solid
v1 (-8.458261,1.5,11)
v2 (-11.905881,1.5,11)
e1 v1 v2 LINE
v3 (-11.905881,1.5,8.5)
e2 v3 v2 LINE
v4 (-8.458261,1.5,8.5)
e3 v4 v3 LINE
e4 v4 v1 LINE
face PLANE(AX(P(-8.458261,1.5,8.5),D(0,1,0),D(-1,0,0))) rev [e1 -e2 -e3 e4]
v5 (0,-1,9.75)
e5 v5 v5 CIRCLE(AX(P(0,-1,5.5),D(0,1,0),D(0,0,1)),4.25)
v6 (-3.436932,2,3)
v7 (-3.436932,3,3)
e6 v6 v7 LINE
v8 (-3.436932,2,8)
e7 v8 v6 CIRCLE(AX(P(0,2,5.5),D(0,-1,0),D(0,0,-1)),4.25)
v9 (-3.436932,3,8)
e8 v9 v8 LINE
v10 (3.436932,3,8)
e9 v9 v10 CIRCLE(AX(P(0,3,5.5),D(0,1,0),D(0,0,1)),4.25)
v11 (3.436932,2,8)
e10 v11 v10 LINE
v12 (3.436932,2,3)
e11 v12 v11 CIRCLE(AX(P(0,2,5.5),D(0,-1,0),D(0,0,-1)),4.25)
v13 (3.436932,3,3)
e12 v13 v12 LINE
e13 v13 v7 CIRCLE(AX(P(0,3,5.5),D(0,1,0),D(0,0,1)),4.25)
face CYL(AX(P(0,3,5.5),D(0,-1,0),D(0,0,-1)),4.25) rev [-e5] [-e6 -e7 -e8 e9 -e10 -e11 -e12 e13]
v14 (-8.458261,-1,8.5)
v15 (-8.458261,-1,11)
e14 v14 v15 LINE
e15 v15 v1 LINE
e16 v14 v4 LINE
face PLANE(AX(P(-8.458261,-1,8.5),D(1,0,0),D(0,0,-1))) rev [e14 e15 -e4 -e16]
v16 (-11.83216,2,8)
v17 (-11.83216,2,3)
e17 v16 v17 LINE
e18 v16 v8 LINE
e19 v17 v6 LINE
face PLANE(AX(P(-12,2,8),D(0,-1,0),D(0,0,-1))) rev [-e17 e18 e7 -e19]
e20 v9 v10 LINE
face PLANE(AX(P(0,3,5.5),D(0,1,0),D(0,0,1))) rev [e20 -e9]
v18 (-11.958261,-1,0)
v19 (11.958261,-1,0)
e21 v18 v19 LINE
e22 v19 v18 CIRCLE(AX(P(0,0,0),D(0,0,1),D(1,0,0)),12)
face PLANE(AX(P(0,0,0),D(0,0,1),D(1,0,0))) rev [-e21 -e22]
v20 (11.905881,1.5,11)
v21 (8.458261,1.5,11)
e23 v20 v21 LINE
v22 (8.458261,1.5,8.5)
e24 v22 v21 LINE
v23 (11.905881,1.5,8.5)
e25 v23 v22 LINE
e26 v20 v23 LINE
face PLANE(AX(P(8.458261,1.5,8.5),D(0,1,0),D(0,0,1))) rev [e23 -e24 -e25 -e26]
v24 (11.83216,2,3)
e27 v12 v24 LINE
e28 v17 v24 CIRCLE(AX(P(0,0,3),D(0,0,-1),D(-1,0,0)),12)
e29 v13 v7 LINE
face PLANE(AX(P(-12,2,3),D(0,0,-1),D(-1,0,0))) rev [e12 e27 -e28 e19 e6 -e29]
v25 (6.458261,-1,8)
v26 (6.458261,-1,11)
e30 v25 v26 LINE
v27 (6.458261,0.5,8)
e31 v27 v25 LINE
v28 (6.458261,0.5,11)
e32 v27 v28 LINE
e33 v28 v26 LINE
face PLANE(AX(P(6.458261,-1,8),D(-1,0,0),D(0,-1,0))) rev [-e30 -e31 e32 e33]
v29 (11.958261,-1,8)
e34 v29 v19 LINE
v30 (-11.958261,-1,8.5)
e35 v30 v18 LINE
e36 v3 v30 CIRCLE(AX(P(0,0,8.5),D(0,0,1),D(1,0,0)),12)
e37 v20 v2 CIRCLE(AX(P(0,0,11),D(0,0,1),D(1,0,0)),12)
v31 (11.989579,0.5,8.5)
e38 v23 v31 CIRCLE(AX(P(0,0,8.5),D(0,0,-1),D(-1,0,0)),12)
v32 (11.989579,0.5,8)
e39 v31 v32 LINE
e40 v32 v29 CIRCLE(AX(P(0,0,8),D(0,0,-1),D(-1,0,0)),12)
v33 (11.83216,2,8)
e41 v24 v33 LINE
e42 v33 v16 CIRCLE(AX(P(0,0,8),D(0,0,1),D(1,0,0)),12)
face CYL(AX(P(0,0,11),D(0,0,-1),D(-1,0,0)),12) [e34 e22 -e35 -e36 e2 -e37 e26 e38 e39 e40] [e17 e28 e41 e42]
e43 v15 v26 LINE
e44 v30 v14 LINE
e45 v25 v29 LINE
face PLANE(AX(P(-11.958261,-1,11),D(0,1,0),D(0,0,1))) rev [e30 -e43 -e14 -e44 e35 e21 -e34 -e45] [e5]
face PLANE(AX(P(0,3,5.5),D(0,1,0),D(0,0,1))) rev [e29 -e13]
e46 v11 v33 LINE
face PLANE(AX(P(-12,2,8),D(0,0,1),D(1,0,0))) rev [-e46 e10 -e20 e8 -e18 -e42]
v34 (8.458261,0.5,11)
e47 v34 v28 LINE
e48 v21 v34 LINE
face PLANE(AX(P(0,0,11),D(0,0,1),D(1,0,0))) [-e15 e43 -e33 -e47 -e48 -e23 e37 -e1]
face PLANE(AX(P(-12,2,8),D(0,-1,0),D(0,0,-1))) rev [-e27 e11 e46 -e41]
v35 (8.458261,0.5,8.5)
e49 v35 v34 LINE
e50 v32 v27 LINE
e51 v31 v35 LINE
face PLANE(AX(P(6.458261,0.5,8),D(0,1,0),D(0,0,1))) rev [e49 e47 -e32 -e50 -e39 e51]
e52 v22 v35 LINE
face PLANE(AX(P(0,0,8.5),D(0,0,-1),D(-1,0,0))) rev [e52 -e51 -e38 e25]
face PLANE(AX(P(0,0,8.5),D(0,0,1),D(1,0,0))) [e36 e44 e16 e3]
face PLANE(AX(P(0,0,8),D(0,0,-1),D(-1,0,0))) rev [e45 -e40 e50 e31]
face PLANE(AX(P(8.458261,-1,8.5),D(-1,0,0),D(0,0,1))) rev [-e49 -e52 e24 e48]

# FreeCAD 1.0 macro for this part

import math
import FreeCAD as App
import Part
import Sketcher

V = App.Vector

doc = App.newDocument("Part")
body = doc.addObject("PartDesign::Body", "Body")

sketch1 = body.newObject("Sketcher::SketchObject", "Sketch")
sketch1.AttachmentSupport = (doc.getObject("XY_Plane"), [""])
sketch1.MapMode = "FlatFace"
sketch1.addGeometry(Part.LineSegment(V(-12, -1, 0), V(12, -1, 0)), False)
sketch1.addGeometry(Part.ArcOfCircle(Part.Circle(V(0, 0, 0), V(0, 0, 1), 12), math.radians(-5), math.radians(185)), False)
sketch1.addConstraint(Sketcher.Constraint("Coincident", 0, 1, 1, 2))
sketch1.addConstraint(Sketcher.Constraint("Coincident", 1, 1, 0, 2))
sketch1.addConstraint(Sketcher.Constraint("Horizontal", 0))
sketch1.addConstraint(Sketcher.Constraint("Coincident", 1, 3, -1, 1))
sketch1.addConstraint(Sketcher.Constraint("Radius", 1, 12.0))
sketch1.addConstraint(Sketcher.Constraint("DistanceY", 0, 1, -1, 1, 1.0))
pad1 = body.newObject("PartDesign::Pad", "Pad")
pad1.Profile = sketch1
pad1.Length = 11

sketch2 = body.newObject("Sketcher::SketchObject", "Sketch001")
sketch2.AttachmentSupport = (doc.getObject("XZ_Plane"), [""])
sketch2.MapMode = "FlatFace"
sketch2.AttachmentOffset = App.Placement(V(0, 0, 1), App.Rotation())
sketch2.addGeometry(Part.Circle(V(0, 5.5, 0), V(0, 0, 1), 4.2), False)
sketch2.addConstraint(Sketcher.Constraint("PointOnObject", 0, 3, -2))
sketch2.addConstraint(Sketcher.Constraint("Diameter", 0, 8.5))
sketch2.addConstraint(Sketcher.Constraint("DistanceY", -1, 1, 0, 3, 5.5))
pocket1 = body.newObject("PartDesign::Pocket", "Pocket")
pocket1.Profile = sketch2
pocket1.Length = 4

sketch3 = body.newObject("Sketcher::SketchObject", "Sketch002")
sketch3.AttachmentSupport = (doc.getObject("YZ_Plane"), [""])
sketch3.MapMode = "FlatFace"
sketch3.addGeometry(Part.LineSegment(V(15, 8, 0), V(2, 8, 0)), False)
sketch3.addGeometry(Part.LineSegment(V(2, 8, 0), V(2, 3, 0)), False)
sketch3.addGeometry(Part.LineSegment(V(2, 3, 0), V(15, 3, 0)), False)
sketch3.addGeometry(Part.LineSegment(V(15, 3, 0), V(15, 8, 0)), False)
sketch3.addConstraint(Sketcher.Constraint("Coincident", 0, 2, 1, 1))
sketch3.addConstraint(Sketcher.Constraint("Coincident", 1, 2, 2, 1))
sketch3.addConstraint(Sketcher.Constraint("Coincident", 2, 2, 3, 1))
sketch3.addConstraint(Sketcher.Constraint("Coincident", 3, 2, 0, 1))
sketch3.addConstraint(Sketcher.Constraint("Horizontal", 0))
sketch3.addConstraint(Sketcher.Constraint("Vertical", 1))
sketch3.addConstraint(Sketcher.Constraint("Horizontal", 2))
sketch3.addConstraint(Sketcher.Constraint("Vertical", 3))
sketch3.addConstraint(Sketcher.Constraint("DistanceY", 1, 2, 1, 1, 5.0))
sketch3.addConstraint(Sketcher.Constraint("DistanceX", -1, 1, 0, 2, 2.0))
sketch3.addConstraint(Sketcher.Constraint("DistanceY", -1, 1, 0, 2, 8.0))
sketch3.addConstraint(Sketcher.Constraint("DistanceX", 0, 2, 0, 1, 13.464597))
pocket2 = body.newObject("PartDesign::Pocket", "Pocket001")
pocket2.Profile = sketch3
pocket2.Type = "ThroughAll"
pocket2.Midplane = True

sketch4 = body.newObject("Sketcher::SketchObject", "Sketch003")
sketch4.AttachmentSupport = (doc.getObject("XY_Plane"), [""])
sketch4.MapMode = "FlatFace"
sketch4.AttachmentOffset = App.Placement(V(0, 0, 11), App.Rotation())
sketch4.addGeometry(Part.LineSegment(V(6.5, 0.5, 0), V(6.5, -1, 0)), False)
sketch4.addGeometry(Part.LineSegment(V(6.5, -1, 0), V(13.7, -1, 0)), False)
sketch4.addGeometry(Part.LineSegment(V(13.7, -1, 0), V(13.7, 0.5, 0)), False)
sketch4.addGeometry(Part.LineSegment(V(13.7, 0.5, 0), V(6.5, 0.5, 0)), False)
sketch4.addConstraint(Sketcher.Constraint("Coincident", 0, 2, 1, 1))
sketch4.addConstraint(Sketcher.Constraint("Coincident", 1, 2, 2, 1))
sketch4.addConstraint(Sketcher.Constraint("Coincident", 2, 2, 3, 1))
sketch4.addConstraint(Sketcher.Constraint("Coincident", 3, 2, 0, 1))
sketch4.addConstraint(Sketcher.Constraint("Vertical", 0))
sketch4.addConstraint(Sketcher.Constraint("Horizontal", 1))
sketch4.addConstraint(Sketcher.Constraint("Vertical", 2))
sketch4.addConstraint(Sketcher.Constraint("Horizontal", 3))
sketch4.addConstraint(Sketcher.Constraint("DistanceY", 0, 2, 0, 1, 1.5))
sketch4.addConstraint(Sketcher.Constraint("DistanceY", 0, 2, -1, 1, 1.0))
sketch4.addConstraint(Sketcher.Constraint("DistanceX", 1, 1, 1, 2, 7.273346))
sketch4.addConstraint(Sketcher.Constraint("DistanceX", -1, 1, 0, 2, 6.458261))
pocket3 = body.newObject("PartDesign::Pocket", "Pocket002")
pocket3.Profile = sketch4
pocket3.Length = 3

sketch5 = body.newObject("Sketcher::SketchObject", "Sketch004")
sketch5.AttachmentSupport = (doc.getObject("XY_Plane"), [""])
sketch5.MapMode = "FlatFace"
sketch5.AttachmentOffset = App.Placement(V(0, 0, 11), App.Rotation())
sketch5.addGeometry(Part.LineSegment(V(-12.7, 1.5, 0), V(-12.7, -1, 0)), False)
sketch5.addGeometry(Part.LineSegment(V(-12.7, -1, 0), V(-8.5, -1, 0)), False)
sketch5.addGeometry(Part.LineSegment(V(-8.5, -1, 0), V(-8.5, 1.5, 0)), False)
sketch5.addGeometry(Part.LineSegment(V(-8.5, 1.5, 0), V(-12.7, 1.5, 0)), False)
sketch5.addConstraint(Sketcher.Constraint("Coincident", 0, 2, 1, 1))
sketch5.addConstraint(Sketcher.Constraint("Coincident", 1, 2, 2, 1))
sketch5.addConstraint(Sketcher.Constraint("Coincident", 2, 2, 3, 1))
sketch5.addConstraint(Sketcher.Constraint("Coincident", 3, 2, 0, 1))
sketch5.addConstraint(Sketcher.Constraint("Vertical", 0))
sketch5.addConstraint(Sketcher.Constraint("Horizontal", 1))
sketch5.addConstraint(Sketcher.Constraint("Vertical", 2))
sketch5.addConstraint(Sketcher.Constraint("Horizontal", 3))
sketch5.addConstraint(Sketcher.Constraint("DistanceY", 0, 2, 0, 1, 2.5))
sketch5.addConstraint(Sketcher.Constraint("DistanceY", 0, 2, -1, 1, 1.0))
sketch5.addConstraint(Sketcher.Constraint("DistanceX", 1, 1, 1, 2, 4.264363))
sketch5.addConstraint(Sketcher.Constraint("DistanceX", 1, 2, -1, 1, 8.458261))
pocket4 = body.newObject("PartDesign::Pocket", "Pocket003")
pocket4.Profile = sketch5
pocket4.Length = 2.5

sketch6 = body.newObject("Sketcher::SketchObject", "Sketch005")
sketch6.AttachmentSupport = (doc.getObject("XY_Plane"), [""])
sketch6.MapMode = "FlatFace"
sketch6.AttachmentOffset = App.Placement(V(0, 0, 11), App.Rotation())
sketch6.addGeometry(Part.LineSegment(V(8.5, 1.5, 0), V(8.5, -1, 0)), False)
sketch6.addGeometry(Part.LineSegment(V(8.5, -1, 0), V(13.7, -1, 0)), False)
sketch6.addGeometry(Part.LineSegment(V(13.7, -1, 0), V(13.7, 1.5, 0)), False)
sketch6.addGeometry(Part.LineSegment(V(13.7, 1.5, 0), V(8.5, 1.5, 0)), False)
sketch6.addConstraint(Sketcher.Constraint("Coincident", 0, 2, 1, 1))
sketch6.addConstraint(Sketcher.Constraint("Coincident", 1, 2, 2, 1))
sketch6.addConstraint(Sketcher.Constraint("Coincident", 2, 2, 3, 1))
sketch6.addConstraint(Sketcher.Constraint("Coincident", 3, 2, 0, 1))
sketch6.addConstraint(Sketcher.Constraint("Vertical", 0))
sketch6.addConstraint(Sketcher.Constraint("Horizontal", 1))
sketch6.addConstraint(Sketcher.Constraint("Vertical", 2))
sketch6.addConstraint(Sketcher.Constraint("Horizontal", 3))
sketch6.addConstraint(Sketcher.Constraint("DistanceY", 0, 2, 0, 1, 2.5))
sketch6.addConstraint(Sketcher.Constraint("DistanceY", 0, 2, -1, 1, 1.0))
sketch6.addConstraint(Sketcher.Constraint("DistanceX", 1, 1, 1, 2, 5.237267))
sketch6.addConstraint(Sketcher.Constraint("DistanceX", -1, 1, 0, 2, 8.458261))
pocket5 = body.newObject("PartDesign::Pocket", "Pocket004")
pocket5.Profile = sketch6
pocket5.Length = 2.5

doc.recompute()
